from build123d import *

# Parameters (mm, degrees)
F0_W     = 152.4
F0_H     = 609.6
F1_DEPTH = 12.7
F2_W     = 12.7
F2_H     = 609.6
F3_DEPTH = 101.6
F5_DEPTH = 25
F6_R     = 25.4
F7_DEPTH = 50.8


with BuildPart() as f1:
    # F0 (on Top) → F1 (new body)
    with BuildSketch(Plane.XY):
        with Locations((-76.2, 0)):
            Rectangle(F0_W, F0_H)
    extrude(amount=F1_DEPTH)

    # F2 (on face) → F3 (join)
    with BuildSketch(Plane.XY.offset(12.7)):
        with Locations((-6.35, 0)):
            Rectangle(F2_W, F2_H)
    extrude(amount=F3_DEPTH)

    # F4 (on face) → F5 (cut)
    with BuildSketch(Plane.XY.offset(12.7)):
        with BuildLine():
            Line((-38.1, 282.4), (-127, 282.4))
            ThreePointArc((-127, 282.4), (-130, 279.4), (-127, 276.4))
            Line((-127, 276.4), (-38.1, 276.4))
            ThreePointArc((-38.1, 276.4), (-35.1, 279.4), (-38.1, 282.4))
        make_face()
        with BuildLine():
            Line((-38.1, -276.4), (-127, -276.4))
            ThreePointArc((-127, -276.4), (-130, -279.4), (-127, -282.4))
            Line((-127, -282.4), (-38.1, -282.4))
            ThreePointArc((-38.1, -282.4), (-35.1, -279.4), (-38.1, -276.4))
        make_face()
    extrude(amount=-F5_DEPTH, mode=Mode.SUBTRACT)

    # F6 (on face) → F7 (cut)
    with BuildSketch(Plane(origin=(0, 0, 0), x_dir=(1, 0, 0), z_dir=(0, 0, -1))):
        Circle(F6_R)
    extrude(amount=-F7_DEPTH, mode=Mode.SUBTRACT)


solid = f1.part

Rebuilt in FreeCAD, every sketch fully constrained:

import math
import FreeCAD as App
import Part
import Sketcher
Q = App.Units.Quantity


def add_polygon(sketch, points):
    """Adds a closed chain of lines whose ends are joined by coincident constraints."""
    first, n = sketch.GeometryCount, len(points)
    for a, b in zip(points, points[1:] + points[:1]):
        sketch.addGeometry(Part.LineSegment(App.Vector(*a, 0), App.Vector(*b, 0)), False)
    for i in range(n):
        sketch.addConstraint(Sketcher.Constraint("Coincident", first + i, 2, first + (i + 1) % n, 1))

doc = App.newDocument("Part")
body = doc.addObject("PartDesign::Body", "Body")

sketch1 = body.newObject("Sketcher::SketchObject", "Sketch")
sketch1.AttachmentSupport = (doc.getObject("XY_Plane"), [""])
sketch1.MapMode = "FlatFace"
add_polygon(sketch1, [(-152, 305), (-152, -305), (0, -305), (0, 305)])
sketch1.addConstraint([
    Sketcher.Constraint("Vertical", 0),
    Sketcher.Constraint("Horizontal", 1),
    Sketcher.Constraint("Vertical", 2),
    Sketcher.Constraint("Horizontal", 3),
    Sketcher.Constraint("Symmetric", 1, 2, 2, 2, -1, 1),
    Sketcher.Constraint("DistanceX", 1, 1, 1, 2, Q("6 in")),
    Sketcher.Constraint("DistanceY", 0, 2, 0, 1, Q("24 in")),
])
pad1 = body.newObject("PartDesign::Pad", "Pad")
pad1.Profile = sketch1
pad1.Length = Q("0.5 in")

sketch2 = body.newObject("Sketcher::SketchObject", "Sketch001")
sketch2.AttachmentSupport = (doc.getObject("XY_Plane"), [""])
sketch2.MapMode = "FlatFace"
sketch2.AttachmentOffset = App.Placement(App.Vector(0, 0, 0.5 * 25.4), App.Rotation())
add_polygon(sketch2, [(-13, 305), (-13, -305), (0, -305), (0, 305)])
sketch2.addConstraint([
    Sketcher.Constraint("Vertical", 0),
    Sketcher.Constraint("Horizontal", 1),
    Sketcher.Constraint("Vertical", 2),
    Sketcher.Constraint("Horizontal", 3),
    Sketcher.Constraint("Symmetric", 1, 2, 2, 2, -1, 1),
    Sketcher.Constraint("DistanceY", 0, 2, 0, 1, Q("24 in")),
    Sketcher.Constraint("DistanceX", 1, 1, 1, 2, Q("0.5 in")),
])
pad2 = body.newObject("PartDesign::Pad", "Pad001")
pad2.Profile = sketch2
pad2.Length = Q("4 in")

sketch3 = body.newObject("Sketcher::SketchObject", "Sketch002")
sketch3.AttachmentSupport = (doc.getObject("XY_Plane"), [""])
sketch3.MapMode = "FlatFace"
sketch3.AttachmentOffset = App.Placement(App.Vector(0, 0, 0.5 * 25.4), App.Rotation())
sketch3.addGeometry([
    Part.LineSegment(App.Vector(-38.1, 282.4, 0), App.Vector(-127, 282.4, 0)),
    Part.ArcOfCircle(Part.Circle(App.Vector(-127, 279.4, 0), App.Vector(0, 0, 1), 3), math.radians(90), math.radians(270)),
    Part.LineSegment(App.Vector(-127, 276.4, 0), App.Vector(-38.1, 276.4, 0)),
    Part.ArcOfCircle(Part.Circle(App.Vector(-38.1, 279.4, 0), App.Vector(0, 0, 1), 3), math.radians(-90), math.radians(90)),
    Part.LineSegment(App.Vector(-38.1, -276.4, 0), App.Vector(-127, -276.4, 0)),
    Part.ArcOfCircle(Part.Circle(App.Vector(-127, -279.4, 0), App.Vector(0, 0, 1), 3), math.radians(90), math.radians(270)),
    Part.LineSegment(App.Vector(-127, -282.4, 0), App.Vector(-38.1, -282.4, 0)),
    Part.ArcOfCircle(Part.Circle(App.Vector(-38.1, -279.4, 0), App.Vector(0, 0, 1), 3), math.radians(-90), math.radians(90)),
], False)
sketch3.addConstraint([
    Sketcher.Constraint("Tangent", 0, 2, 1, 1),
    Sketcher.Constraint("Tangent", 1, 2, 2, 1),
    Sketcher.Constraint("Tangent", 2, 2, 3, 1),
    Sketcher.Constraint("Tangent", 3, 2, 0, 1),
    Sketcher.Constraint("Tangent", 4, 2, 5, 1),
    Sketcher.Constraint("Tangent", 5, 2, 6, 1),
    Sketcher.Constraint("Tangent", 6, 2, 7, 1),
    Sketcher.Constraint("Tangent", 7, 2, 4, 1),
    Sketcher.Constraint("Horizontal", 0),
    Sketcher.Constraint("Horizontal", 2),
    Sketcher.Constraint("Horizontal", 4),
    Sketcher.Constraint("Horizontal", 6),
    Sketcher.Constraint("Equal", 3, 5),
    Sketcher.Constraint("Symmetric", 1, 3, 5, 3, -1),
    Sketcher.Constraint("Vertical", 3, 3, 7, 3),
    Sketcher.Constraint("DistanceX", 0, 2, 0, 1, Q("3.5 in")),
    Sketcher.Constraint("DistanceX", 1, 3, -1, 1, Q("5 in")),
    Sketcher.Constraint("DistanceY", -1, 1, 1, 3, Q("11 in")),
    Sketcher.Constraint("Radius", 1, Q("3 mm")),
])
pocket1 = body.newObject("PartDesign::Pocket", "Pocket")
pocket1.Profile = sketch3
pocket1.Length = 25

sketch4 = body.newObject("Sketcher::SketchObject", "Sketch003")
sketch4.AttachmentSupport = (doc.getObject("XY_Plane"), [""])
sketch4.MapMode = "FlatFace"
sketch4.addGeometry(Part.Circle(App.Vector(0, 0, 0), App.Vector(0, 0, 1), 25), False)
sketch4.addConstraint([
    Sketcher.Constraint("Coincident", 0, 3, -1, 1),
    Sketcher.Constraint("Diameter", 0, Q("2 in")),
])
pocket2 = body.newObject("PartDesign::Pocket", "Pocket001")
pocket2.Profile = sketch4
pocket2.Length = Q("2 in")
pocket2.Reversed = True

doc.recompute()
